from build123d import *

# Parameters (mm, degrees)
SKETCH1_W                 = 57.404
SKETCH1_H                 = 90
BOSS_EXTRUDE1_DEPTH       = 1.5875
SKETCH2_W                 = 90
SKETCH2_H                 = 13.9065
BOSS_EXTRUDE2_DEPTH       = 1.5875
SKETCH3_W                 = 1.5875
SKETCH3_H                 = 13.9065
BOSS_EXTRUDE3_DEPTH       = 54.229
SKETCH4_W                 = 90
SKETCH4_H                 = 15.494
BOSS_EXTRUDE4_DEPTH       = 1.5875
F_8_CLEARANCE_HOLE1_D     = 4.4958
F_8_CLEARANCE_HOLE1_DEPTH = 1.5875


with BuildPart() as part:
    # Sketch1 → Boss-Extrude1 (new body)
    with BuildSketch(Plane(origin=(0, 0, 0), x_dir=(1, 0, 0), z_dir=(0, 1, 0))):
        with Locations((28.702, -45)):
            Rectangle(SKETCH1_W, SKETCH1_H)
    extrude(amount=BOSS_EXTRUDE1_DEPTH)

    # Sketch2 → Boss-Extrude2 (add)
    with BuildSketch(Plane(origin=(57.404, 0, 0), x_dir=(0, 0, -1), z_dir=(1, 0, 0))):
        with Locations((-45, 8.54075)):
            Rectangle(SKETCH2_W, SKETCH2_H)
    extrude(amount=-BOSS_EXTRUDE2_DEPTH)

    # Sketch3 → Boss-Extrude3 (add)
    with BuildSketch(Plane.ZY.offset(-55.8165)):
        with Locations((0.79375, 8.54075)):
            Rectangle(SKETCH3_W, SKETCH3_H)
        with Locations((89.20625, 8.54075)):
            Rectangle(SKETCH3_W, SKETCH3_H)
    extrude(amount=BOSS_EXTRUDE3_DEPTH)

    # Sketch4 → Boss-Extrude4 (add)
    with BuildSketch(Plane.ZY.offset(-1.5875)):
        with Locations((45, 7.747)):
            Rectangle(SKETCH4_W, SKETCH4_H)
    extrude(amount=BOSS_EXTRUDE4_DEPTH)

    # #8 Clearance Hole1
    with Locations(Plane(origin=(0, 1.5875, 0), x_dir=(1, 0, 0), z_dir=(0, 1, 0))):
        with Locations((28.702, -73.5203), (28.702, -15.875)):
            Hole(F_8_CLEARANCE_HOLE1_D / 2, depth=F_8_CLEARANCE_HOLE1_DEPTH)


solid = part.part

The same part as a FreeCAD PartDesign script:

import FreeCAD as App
import Part
import Sketcher
from FreeCAD import Vector
Q = App.Units.Quantity


def add_polygon(sketch, points):
    """Adds a closed chain of lines whose ends are joined by coincident constraints."""
    first, n = sketch.GeometryCount, len(points)
    for a, b in zip(points, points[1:] + points[:1]):
        sketch.addGeometry(Part.LineSegment(App.Vector(*a, 0), App.Vector(*b, 0)), False)
    for i in range(n):
        sketch.addConstraint(Sketcher.Constraint("Coincident", first + i, 2, first + (i + 1) % n, 1))

doc = App.newDocument("Part")
body = doc.addObject("PartDesign::Body", "Body")

# Sketch on XZ plane
sketch1 = doc.addObject("Sketcher::SketchObject", "Sketch")
body.addObject(sketch1)
sketch1.AttachmentSupport = (doc.XZ_Plane, [""])
sketch1.MapMode = "FlatFace"
add_polygon(sketch1, [(0, 0), (0, 90), (57, 90), (57, 0)])  # lines 0-3
sketch1.addConstraint([
    Sketcher.Constraint("Vertical", 0),
    Sketcher.Constraint("Horizontal", 1),
    Sketcher.Constraint("Vertical", 2),
    Sketcher.Constraint("Horizontal", 3),
    Sketcher.Constraint("Coincident", 3, 2, -1, 1),
    Sketcher.Constraint("DistanceX", 1, 1, 1, 2, Q("2.26 in")),
    Sketcher.Constraint("DistanceY", 0, 1, 0, 2, 90.0),
])
pad1 = doc.addObject("PartDesign::Pad", "Pad")
body.addObject(pad1)
pad1.Profile = sketch1
pad1.Length = Q("0.0625 in")
pad1.Reversed = True

# Sketch on YZ plane
sketch2 = doc.addObject("Sketcher::SketchObject", "Sketch001")
body.addObject(sketch2)
sketch2.AttachmentSupport = (doc.YZ_Plane, [""])
sketch2.MapMode = "FlatFace"
sketch2.AttachmentOffset = App.Placement(Vector(0, 0, 2.26 * 25.4), App.Rotation())
add_polygon(sketch2, [(15, 90), (2, 90), (2, 0), (15, 0)])  # lines 0-3
sketch2.addConstraint([
    Sketcher.Constraint("Horizontal", 0),
    Sketcher.Constraint("Vertical", 1),
    Sketcher.Constraint("Horizontal", 2),
    Sketcher.Constraint("Vertical", 3),
    Sketcher.Constraint("PointOnObject", 1, 2, -1),
    Sketcher.Constraint("DistanceX", -1, 1, 2, 2, Q("0.61 in")),
    Sketcher.Constraint("DistanceX", 0, 2, 0, 1, Q("0.5475 in")),
    Sketcher.Constraint("DistanceY", 1, 2, 1, 1, 90.0),
])
pad2 = doc.addObject("PartDesign::Pad", "Pad001")
body.addObject(pad2)
pad2.Profile = sketch2
pad2.Length = Q("0.0625 in")
pad2.Reversed = True

# Sketch on YZ plane
sketch3 = doc.addObject("Sketcher::SketchObject", "Sketch002")
body.addObject(sketch3)
sketch3.AttachmentSupport = (doc.YZ_Plane, [""])
sketch3.MapMode = "FlatFace"
sketch3.AttachmentOffset = App.Placement(Vector(0, 0, 2.1975 * 25.4), App.Rotation())
add_polygon(sketch3, [(15.5, 0), (1.6, 0), (1.6, 1.6), (15.5, 1.6)])  # lines 0-3
add_polygon(sketch3, [(15.5, 88.4), (1.6, 88.4), (1.6, 90), (15.5, 90)])  # lines 4-7
sketch3.addConstraint([
    Sketcher.Constraint("Horizontal", 0),
    Sketcher.Constraint("Vertical", 1),
    Sketcher.Constraint("Horizontal", 2),
    Sketcher.Constraint("Vertical", 3),
    Sketcher.Constraint("Horizontal", 4),
    Sketcher.Constraint("Vertical", 5),
    Sketcher.Constraint("Horizontal", 6),
    Sketcher.Constraint("Vertical", 7),
    Sketcher.Constraint("PointOnObject", 0, 2, -1),
    Sketcher.Constraint("Vertical", 1, 2, 4, 2),
    Sketcher.Constraint("Vertical", 3, 2, 6, 2),
    Sketcher.Constraint("Equal", 3, 5),
    Sketcher.Constraint("DistanceY", 1, 1, 1, 2, Q("0.0625 in")),
    Sketcher.Constraint("DistanceX", -1, 1, 2, 2, Q("0.61 in")),
    Sketcher.Constraint("DistanceX", 0, 2, 0, 1, Q("0.5475 in")),
    Sketcher.Constraint("DistanceY", -1, 1, 4, 2, 88.4125),
])
pad3 = doc.addObject("PartDesign::Pad", "Pad002")
body.addObject(pad3)
pad3.Profile = sketch3
pad3.Length = Q("2.135 in")
pad3.Reversed = True

# Sketch on YZ plane
sketch4 = doc.addObject("Sketcher::SketchObject", "Sketch003")
body.addObject(sketch4)
sketch4.AttachmentSupport = (doc.YZ_Plane, [""])
sketch4.MapMode = "FlatFace"
sketch4.AttachmentOffset = App.Placement(Vector(0, 0, 0.0625 * 25.4), App.Rotation())
add_polygon(sketch4, [(15, 0), (0, 0), (0, 90), (15, 90)])  # lines 0-3
sketch4.addConstraint([
    Sketcher.Constraint("Horizontal", 0),
    Sketcher.Constraint("Vertical", 1),
    Sketcher.Constraint("Horizontal", 2),
    Sketcher.Constraint("Vertical", 3),
    Sketcher.Constraint("Coincident", 0, 2, -1, 1),
    Sketcher.Constraint("DistanceX", 0, 2, 0, 1, Q("0.61 in")),
    Sketcher.Constraint("DistanceY", 1, 1, 1, 2, 90.0),
])
pad4 = doc.addObject("PartDesign::Pad", "Pad003")
body.addObject(pad4)
pad4.Profile = sketch4
pad4.Length = Q("0.0625 in")
pad4.Reversed = True

# Sketch on XZ plane
sketch5 = doc.addObject("Sketcher::SketchObject", "Sketch004")
body.addObject(sketch5)
sketch5.AttachmentSupport = (doc.XZ_Plane, [""])
sketch5.MapMode = "FlatFace"
sketch5.AttachmentOffset = App.Placement(Vector(0, 0, -0.0625 * 25.4), App.Rotation())
sketch5.addGeometry([
    Part.Circle(Vector(28.7, 73.5, 0), Vector(0, 0, 1), 2.2),
    Part.Circle(Vector(28.7, 15.9, 0), Vector(0, 0, 1), 2.2),
], False)
sketch5.addConstraint([
    Sketcher.Constraint("Equal", 0, 1),
    Sketcher.Constraint("Vertical", 0, 3, 1, 3),
    Sketcher.Constraint("Diameter", 0, Q("0.177 in")),
    Sketcher.Constraint("DistanceX", -1, 1, 0, 3, Q("1.13 in")),
    Sketcher.Constraint("DistanceY", -1, 1, 1, 3, Q("0.625 in")),
    Sketcher.Constraint("DistanceY", -1, 1, 0, 3, Q("2.8945 in")),
])
doc.recompute()
hole = doc.addObject("PartDesign::Hole", "Hole")
body.addObject(hole)
hole.Profile = sketch5
hole.ThreadType = "None"
hole.Diameter = Q("0.177 in")
hole.DepthType = "Dimension"
hole.Depth = Q("0.0625 in")
hole.DrillPoint = "Flat"
hole.Reversed = True

doc.recompute()
